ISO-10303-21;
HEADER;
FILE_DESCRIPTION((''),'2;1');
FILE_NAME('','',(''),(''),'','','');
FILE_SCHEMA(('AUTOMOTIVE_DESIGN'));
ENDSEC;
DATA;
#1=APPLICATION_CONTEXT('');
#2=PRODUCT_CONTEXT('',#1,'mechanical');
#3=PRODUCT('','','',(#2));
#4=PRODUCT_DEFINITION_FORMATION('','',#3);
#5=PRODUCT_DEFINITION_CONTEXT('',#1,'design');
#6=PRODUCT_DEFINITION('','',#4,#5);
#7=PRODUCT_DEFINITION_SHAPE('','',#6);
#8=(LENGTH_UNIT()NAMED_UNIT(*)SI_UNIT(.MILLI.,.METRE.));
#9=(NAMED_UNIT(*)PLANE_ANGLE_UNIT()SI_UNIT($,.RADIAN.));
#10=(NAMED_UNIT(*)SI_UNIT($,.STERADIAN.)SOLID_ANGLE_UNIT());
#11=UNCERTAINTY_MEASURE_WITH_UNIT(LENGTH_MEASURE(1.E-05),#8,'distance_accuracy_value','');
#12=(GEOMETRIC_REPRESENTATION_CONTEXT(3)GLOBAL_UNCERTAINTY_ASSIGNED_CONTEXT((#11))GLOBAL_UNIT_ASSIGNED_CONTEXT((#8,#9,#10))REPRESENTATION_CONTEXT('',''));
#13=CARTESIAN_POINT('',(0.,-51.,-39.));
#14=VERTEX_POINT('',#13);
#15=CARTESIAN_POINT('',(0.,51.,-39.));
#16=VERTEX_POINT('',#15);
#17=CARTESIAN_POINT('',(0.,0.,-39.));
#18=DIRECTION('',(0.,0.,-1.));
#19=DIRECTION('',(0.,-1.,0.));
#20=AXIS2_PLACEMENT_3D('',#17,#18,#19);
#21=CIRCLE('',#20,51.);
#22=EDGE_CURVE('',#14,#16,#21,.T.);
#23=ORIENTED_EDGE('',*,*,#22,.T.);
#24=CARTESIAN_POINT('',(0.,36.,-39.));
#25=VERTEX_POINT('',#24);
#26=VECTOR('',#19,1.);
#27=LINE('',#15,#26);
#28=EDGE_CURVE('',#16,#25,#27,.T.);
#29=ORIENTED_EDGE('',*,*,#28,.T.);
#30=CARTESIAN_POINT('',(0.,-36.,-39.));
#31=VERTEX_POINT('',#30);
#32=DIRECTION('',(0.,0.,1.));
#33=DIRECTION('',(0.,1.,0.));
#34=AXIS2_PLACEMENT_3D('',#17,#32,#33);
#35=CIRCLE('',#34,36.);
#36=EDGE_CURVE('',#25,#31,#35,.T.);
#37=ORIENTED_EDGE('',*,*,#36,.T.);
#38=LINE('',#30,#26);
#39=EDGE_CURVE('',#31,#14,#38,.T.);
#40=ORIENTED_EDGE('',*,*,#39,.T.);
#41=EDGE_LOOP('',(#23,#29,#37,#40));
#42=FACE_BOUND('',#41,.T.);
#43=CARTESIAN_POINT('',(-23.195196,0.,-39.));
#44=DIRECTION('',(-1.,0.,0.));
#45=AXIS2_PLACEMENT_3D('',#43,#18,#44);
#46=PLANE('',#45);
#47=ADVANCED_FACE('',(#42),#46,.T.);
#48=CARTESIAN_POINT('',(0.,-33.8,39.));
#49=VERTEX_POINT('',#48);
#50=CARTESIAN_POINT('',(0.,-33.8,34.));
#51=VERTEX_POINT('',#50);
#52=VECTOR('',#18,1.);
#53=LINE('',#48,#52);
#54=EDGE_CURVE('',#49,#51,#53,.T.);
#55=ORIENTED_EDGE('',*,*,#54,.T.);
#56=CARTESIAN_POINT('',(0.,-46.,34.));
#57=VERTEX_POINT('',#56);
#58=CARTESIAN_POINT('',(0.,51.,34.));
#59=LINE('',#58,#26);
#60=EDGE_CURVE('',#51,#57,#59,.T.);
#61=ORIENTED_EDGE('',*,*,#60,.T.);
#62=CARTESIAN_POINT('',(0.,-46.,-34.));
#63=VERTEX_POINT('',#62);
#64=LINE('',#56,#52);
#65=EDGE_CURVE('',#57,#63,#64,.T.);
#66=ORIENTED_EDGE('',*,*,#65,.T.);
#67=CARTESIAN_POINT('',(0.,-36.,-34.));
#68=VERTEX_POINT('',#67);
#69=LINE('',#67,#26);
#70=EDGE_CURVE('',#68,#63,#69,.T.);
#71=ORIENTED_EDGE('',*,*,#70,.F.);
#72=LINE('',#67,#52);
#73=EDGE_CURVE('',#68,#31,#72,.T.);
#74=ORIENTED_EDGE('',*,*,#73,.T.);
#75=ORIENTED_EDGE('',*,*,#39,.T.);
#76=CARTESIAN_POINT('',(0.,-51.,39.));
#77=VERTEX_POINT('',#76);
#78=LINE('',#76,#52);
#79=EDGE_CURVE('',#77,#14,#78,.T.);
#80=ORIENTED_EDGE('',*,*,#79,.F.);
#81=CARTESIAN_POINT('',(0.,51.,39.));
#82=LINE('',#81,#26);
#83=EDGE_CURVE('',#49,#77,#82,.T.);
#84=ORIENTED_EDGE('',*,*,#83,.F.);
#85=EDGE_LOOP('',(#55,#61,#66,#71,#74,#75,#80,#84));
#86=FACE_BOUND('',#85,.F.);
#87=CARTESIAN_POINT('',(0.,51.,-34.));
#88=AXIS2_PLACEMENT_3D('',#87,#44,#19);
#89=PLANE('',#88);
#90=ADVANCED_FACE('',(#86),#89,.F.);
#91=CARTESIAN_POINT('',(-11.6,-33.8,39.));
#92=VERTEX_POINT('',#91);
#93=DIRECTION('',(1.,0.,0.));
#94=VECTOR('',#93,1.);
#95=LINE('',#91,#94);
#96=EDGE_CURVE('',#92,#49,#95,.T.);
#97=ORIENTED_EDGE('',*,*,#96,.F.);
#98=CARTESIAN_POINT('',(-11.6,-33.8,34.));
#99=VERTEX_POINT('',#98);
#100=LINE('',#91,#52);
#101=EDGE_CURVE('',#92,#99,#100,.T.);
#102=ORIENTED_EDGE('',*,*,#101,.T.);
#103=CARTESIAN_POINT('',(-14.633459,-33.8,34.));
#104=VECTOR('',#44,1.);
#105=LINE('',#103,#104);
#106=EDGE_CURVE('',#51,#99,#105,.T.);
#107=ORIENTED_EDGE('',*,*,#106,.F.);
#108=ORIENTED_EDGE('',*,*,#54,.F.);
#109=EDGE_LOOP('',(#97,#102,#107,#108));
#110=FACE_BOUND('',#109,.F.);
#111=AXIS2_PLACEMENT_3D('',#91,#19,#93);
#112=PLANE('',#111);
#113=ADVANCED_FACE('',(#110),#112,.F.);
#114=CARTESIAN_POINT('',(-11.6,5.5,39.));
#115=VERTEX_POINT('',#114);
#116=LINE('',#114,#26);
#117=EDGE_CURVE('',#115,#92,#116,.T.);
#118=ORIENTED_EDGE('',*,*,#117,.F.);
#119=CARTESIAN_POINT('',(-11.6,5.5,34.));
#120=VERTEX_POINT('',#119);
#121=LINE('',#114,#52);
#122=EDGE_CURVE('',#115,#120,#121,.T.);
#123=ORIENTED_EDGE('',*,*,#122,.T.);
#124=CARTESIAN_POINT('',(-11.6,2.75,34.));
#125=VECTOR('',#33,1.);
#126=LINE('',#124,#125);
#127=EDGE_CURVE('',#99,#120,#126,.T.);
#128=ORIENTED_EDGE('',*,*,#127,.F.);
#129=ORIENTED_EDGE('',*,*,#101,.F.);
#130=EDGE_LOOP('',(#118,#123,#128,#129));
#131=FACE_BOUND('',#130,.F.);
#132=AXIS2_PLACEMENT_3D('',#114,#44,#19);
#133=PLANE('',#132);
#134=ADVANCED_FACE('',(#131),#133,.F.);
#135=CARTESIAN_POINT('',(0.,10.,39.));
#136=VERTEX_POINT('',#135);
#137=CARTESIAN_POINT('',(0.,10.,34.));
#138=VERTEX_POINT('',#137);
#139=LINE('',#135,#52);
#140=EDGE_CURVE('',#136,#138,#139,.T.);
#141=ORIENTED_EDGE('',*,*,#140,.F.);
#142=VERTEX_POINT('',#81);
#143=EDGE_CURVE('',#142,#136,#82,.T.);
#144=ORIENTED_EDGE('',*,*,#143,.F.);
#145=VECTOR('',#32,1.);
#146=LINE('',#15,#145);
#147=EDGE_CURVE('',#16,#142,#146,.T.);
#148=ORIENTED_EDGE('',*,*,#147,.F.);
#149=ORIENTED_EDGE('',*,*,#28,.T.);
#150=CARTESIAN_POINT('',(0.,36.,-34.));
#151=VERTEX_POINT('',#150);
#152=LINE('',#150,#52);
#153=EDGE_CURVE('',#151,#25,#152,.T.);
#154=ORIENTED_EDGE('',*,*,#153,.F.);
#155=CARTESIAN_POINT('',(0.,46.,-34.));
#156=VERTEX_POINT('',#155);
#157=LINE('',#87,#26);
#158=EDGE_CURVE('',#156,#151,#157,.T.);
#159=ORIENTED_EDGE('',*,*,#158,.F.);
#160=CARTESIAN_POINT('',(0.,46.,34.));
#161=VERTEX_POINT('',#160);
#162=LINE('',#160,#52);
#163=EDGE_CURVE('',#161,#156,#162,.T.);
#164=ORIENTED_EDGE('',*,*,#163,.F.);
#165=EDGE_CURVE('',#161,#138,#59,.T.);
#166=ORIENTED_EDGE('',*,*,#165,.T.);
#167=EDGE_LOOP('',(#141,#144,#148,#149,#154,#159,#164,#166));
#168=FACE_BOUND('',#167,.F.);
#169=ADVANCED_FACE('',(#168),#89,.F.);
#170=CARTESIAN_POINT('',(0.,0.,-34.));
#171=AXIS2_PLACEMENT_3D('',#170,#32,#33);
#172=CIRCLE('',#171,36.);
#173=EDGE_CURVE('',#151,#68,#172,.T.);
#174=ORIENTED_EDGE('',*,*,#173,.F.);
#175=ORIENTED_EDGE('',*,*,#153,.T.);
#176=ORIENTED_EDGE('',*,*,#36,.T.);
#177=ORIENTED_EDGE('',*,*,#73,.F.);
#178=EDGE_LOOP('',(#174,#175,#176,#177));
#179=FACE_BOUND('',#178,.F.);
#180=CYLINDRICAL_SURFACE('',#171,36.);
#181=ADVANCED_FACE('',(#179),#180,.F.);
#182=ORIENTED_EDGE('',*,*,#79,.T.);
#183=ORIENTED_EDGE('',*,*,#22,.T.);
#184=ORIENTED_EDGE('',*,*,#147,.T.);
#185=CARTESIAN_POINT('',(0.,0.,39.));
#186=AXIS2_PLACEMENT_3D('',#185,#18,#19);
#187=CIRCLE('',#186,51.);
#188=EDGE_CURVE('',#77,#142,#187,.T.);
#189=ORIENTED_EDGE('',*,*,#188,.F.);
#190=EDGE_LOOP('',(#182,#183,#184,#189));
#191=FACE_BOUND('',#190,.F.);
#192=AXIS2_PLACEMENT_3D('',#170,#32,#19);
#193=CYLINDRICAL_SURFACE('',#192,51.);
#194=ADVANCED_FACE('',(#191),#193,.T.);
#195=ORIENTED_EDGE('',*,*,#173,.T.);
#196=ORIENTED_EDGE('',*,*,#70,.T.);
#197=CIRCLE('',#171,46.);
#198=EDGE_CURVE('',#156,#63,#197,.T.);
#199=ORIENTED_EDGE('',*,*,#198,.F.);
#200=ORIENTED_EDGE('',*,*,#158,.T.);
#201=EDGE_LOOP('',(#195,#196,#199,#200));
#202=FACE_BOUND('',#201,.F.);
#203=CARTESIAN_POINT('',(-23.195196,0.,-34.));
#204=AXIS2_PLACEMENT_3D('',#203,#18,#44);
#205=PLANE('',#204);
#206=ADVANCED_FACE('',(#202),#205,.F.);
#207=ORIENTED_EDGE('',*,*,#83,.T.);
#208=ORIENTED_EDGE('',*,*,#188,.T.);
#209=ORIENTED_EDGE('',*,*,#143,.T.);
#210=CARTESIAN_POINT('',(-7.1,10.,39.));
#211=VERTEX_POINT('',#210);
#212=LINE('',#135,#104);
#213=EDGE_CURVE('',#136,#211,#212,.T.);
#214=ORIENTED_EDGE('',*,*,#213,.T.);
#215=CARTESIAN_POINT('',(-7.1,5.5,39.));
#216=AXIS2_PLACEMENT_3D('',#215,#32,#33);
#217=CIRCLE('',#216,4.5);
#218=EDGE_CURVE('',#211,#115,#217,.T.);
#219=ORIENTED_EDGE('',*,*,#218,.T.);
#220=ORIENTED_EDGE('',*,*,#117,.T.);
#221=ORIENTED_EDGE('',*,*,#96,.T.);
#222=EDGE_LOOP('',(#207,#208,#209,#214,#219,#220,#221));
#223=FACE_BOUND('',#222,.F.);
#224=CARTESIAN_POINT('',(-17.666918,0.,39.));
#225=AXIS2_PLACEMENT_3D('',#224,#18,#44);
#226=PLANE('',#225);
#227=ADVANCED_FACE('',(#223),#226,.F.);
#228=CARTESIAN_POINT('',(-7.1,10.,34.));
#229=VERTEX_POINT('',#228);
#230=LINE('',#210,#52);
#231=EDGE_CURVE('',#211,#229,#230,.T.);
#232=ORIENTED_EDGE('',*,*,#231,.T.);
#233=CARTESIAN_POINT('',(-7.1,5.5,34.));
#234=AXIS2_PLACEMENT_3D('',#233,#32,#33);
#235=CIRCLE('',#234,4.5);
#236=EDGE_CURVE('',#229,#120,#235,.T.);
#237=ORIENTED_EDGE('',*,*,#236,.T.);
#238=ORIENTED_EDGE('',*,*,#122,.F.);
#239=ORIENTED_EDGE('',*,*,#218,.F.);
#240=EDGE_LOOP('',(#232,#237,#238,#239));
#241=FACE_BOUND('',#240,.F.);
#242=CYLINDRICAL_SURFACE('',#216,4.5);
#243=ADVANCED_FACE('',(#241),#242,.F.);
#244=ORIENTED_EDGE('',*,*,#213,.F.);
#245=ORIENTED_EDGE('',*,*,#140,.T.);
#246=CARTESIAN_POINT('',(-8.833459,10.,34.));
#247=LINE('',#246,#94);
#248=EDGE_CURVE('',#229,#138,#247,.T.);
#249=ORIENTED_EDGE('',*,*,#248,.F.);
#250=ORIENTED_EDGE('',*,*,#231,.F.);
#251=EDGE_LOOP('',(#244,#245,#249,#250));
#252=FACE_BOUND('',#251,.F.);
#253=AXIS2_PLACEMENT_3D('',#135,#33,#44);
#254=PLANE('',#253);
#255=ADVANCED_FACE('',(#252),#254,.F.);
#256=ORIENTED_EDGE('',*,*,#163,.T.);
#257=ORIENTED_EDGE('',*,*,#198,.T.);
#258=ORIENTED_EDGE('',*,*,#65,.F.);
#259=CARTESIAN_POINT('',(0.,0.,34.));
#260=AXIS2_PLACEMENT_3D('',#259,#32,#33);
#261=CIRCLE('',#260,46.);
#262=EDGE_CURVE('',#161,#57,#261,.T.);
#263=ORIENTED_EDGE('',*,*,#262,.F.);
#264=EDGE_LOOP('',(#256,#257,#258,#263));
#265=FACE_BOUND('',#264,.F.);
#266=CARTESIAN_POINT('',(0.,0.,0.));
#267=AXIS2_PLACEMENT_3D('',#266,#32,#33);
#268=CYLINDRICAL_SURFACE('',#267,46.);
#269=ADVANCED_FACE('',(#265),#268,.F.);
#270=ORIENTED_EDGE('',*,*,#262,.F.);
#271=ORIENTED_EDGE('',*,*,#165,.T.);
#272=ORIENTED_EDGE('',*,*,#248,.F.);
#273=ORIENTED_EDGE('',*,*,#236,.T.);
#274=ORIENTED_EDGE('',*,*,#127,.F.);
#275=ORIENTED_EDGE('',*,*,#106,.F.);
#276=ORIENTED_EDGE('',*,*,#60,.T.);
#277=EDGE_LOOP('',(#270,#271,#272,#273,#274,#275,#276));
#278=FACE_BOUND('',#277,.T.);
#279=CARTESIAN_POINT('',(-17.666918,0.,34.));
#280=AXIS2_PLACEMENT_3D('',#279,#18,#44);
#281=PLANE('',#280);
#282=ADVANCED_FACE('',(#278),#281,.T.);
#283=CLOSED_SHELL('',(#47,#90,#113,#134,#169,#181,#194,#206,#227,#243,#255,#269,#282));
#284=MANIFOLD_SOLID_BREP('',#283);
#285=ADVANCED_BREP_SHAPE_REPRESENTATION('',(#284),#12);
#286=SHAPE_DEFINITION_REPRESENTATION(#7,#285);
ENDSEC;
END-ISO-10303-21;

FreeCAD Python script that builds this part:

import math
import FreeCAD as App
import Part
import Sketcher
from FreeCAD import Vector

doc = App.newDocument("Part")
body = doc.addObject("PartDesign::Body", "Body")

# Sketch on XY plane
sketch1 = body.newObject("Sketcher::SketchObject", "Sketch")
sketch1.AttachmentSupport = (doc.getObject("XY_Plane"), [""])
sketch1.MapMode = "FlatFace"
sketch1.addGeometry([
    Part.LineSegment(Vector(0, 46, 0), Vector(0, 51, 0)),
    Part.ArcOfCircle(Part.Circle(Vector(0, 0, 0), Vector(0, 0, 1), 51), math.radians(90), math.radians(270)),
    Part.LineSegment(Vector(0, -51, 0), Vector(0, -46, 0)),
    Part.ArcOfCircle(Part.Circle(Vector(0, 0, 0), Vector(0, 0, 1), 46), math.radians(90), math.radians(270)),
], False)
sketch1.addConstraint([
    Sketcher.Constraint("Coincident", 0, 2, 1, 1),
    Sketcher.Constraint("Coincident", 1, 2, 2, 1),
    Sketcher.Constraint("Coincident", 2, 2, 3, 2),
    Sketcher.Constraint("Coincident", 3, 1, 0, 1),
    Sketcher.Constraint("Vertical", 0),
    Sketcher.Constraint("Vertical", 2),
    Sketcher.Constraint("Coincident", 1, 3, -1, 1),
    Sketcher.Constraint("Coincident", 3, 3, -1, 1),
    Sketcher.Constraint("PointOnObject", 0, 2, -2),
    Sketcher.Constraint("PointOnObject", 1, 2, -2),
    Sketcher.Constraint("Radius", 1, 51.0),
    Sketcher.Constraint("Radius", 3, 46.0),
])
pad1 = body.newObject("PartDesign::Pad", "Pad")
pad1.Profile = sketch1
pad1.Length = 68
pad1.Midplane = True

# Sketch on XY plane
sketch2 = body.newObject("Sketcher::SketchObject", "Sketch001")
sketch2.AttachmentSupport = (doc.getObject("XY_Plane"), [""])
sketch2.MapMode = "FlatFace"
sketch2.AttachmentOffset = App.Placement(Vector(0, 0, 34), App.Rotation())
sketch2.addGeometry([
    Part.LineSegment(Vector(0, -51, 0), Vector(0, 51, 0)),
    Part.ArcOfCircle(Part.Circle(Vector(0, 0, 0), Vector(0, 0, 1), 51), math.radians(90), math.radians(270)),
], False)
sketch2.addConstraint([
    Sketcher.Constraint("Coincident", 0, 1, 1, 2),
    Sketcher.Constraint("Coincident", 1, 1, 0, 2),
    Sketcher.Constraint("Vertical", 0),
    Sketcher.Constraint("Coincident", 1, 3, -1, 1),
    Sketcher.Constraint("PointOnObject", 0, 1, -2),
    Sketcher.Constraint("Radius", 1, 51.0),
])
pad2 = body.newObject("PartDesign::Pad", "Pad001")
pad2.Profile = sketch2
pad2.Length = 5

# Sketch on XY plane
sketch3 = body.newObject("Sketcher::SketchObject", "Sketch002")
sketch3.AttachmentSupport = (doc.getObject("XY_Plane"), [""])
sketch3.MapMode = "FlatFace"
sketch3.AttachmentOffset = App.Placement(Vector(0, 0, -34), App.Rotation())
sketch3.addGeometry([
    Part.LineSegment(Vector(0, 51, 0), Vector(0, 36, 0)),
    Part.ArcOfCircle(Part.Circle(Vector(0, 0, 0), Vector(0, 0, 1), 36), math.radians(90), math.radians(270)),
    Part.LineSegment(Vector(0, -36, 0), Vector(0, -51, 0)),
    Part.ArcOfCircle(Part.Circle(Vector(0, 0, 0), Vector(0, 0, 1), 51), math.radians(90), math.radians(270)),
], False)
sketch3.addConstraint([
    Sketcher.Constraint("Coincident", 0, 2, 1, 1),
    Sketcher.Constraint("Coincident", 1, 2, 2, 1),
    Sketcher.Constraint("Coincident", 2, 2, 3, 2),
    Sketcher.Constraint("Coincident", 3, 1, 0, 1),
    Sketcher.Constraint("Vertical", 0),
    Sketcher.Constraint("Vertical", 2),
    Sketcher.Constraint("Coincident", 1, 3, -1, 1),
    Sketcher.Constraint("Coincident", 3, 3, -1, 1),
    Sketcher.Constraint("PointOnObject", 0, 2, -2),
    Sketcher.Constraint("PointOnObject", 1, 2, -2),
    Sketcher.Constraint("Radius", 1, 36.0),
    Sketcher.Constraint("Radius", 3, 51.0),
])
pad3 = body.newObject("PartDesign::Pad", "Pad002")
pad3.Profile = sketch3
pad3.Length = 5
pad3.Reversed = True

# Sketch on XY plane
sketch4 = body.newObject("Sketcher::SketchObject", "Sketch003")
sketch4.AttachmentSupport = (doc.getObject("XY_Plane"), [""])
sketch4.MapMode = "FlatFace"
sketch4.AttachmentOffset = App.Placement(Vector(0, 0, 39), App.Rotation())
sketch4.addGeometry([
    Part.LineSegment(Vector(-11.6, 5.5, 0), Vector(-11.6, -33.8, 0)),  # 0
    Part.LineSegment(Vector(-11.6, -33.8, 0), Vector(0, -33.8, 0)),  # 1
    Part.LineSegment(Vector(0, -33.8, 0), Vector(0, -2.1, 0)),  # 2
    Part.ArcOfCircle(Part.Circle(Vector(0, 0, 0), Vector(0, 0, 1), 2.1), math.radians(-90), math.radians(-68)),  # 3
    Part.ArcOfCircle(Part.Circle(Vector(0, 0, 0), Vector(0, 0, 1), 2.2), math.radians(-68), math.radians(0)),  # 4
    Part.ArcOfCircle(Part.Circle(Vector(0, 0, 0), Vector(0, 0, 1), 2.1), math.radians(0), math.radians(90)),  # 5
    Part.LineSegment(Vector(0, 2.1, 0), Vector(0, 10, 0)),  # 6
    Part.LineSegment(Vector(0, 10, 0), Vector(-7.1, 10, 0)),  # 7
    Part.ArcOfCircle(Part.Circle(Vector(-7.1, 5.5, 0), Vector(0, 0, 1), 4.5), math.radians(90), math.radians(180)),  # 8
], False)
sketch4.addConstraint([
    Sketcher.Constraint("Coincident", 0, 2, 1, 1),
    Sketcher.Constraint("Coincident", 1, 2, 2, 1),
    Sketcher.Constraint("Coincident", 2, 2, 3, 1),
    Sketcher.Constraint("Tangent", 3, 2, 4, 1),
    Sketcher.Constraint("Tangent", 4, 2, 5, 1),
    Sketcher.Constraint("Coincident", 5, 2, 6, 1),
    Sketcher.Constraint("Coincident", 6, 2, 7, 1),
    Sketcher.Constraint("Tangent", 7, 2, 8, 1),
    Sketcher.Constraint("Tangent", 8, 2, 0, 1),
    Sketcher.Constraint("Vertical", 0),
    Sketcher.Constraint("Horizontal", 1),
    Sketcher.Constraint("Vertical", 2),
    Sketcher.Constraint("Vertical", 6),
    Sketcher.Constraint("Horizontal", 7),
    Sketcher.Constraint("Coincident", 3, 3, -1, 1),
    Sketcher.Constraint("Coincident", 5, 3, -1, 1),
    Sketcher.Constraint("PointOnObject", 1, 2, -2),
    Sketcher.Constraint("PointOnObject", 4, 2, -1),
    Sketcher.Constraint("PointOnObject", 5, 2, -2),
    Sketcher.Constraint("Radius", 8, 4.5),
    Sketcher.Constraint("Radius", 3, 2.15),
    Sketcher.Constraint("DistanceX", 1, 1, 1, 2, 11.6),
    Sketcher.Constraint("DistanceY", 0, 2, 0, 1, 39.3),
    Sketcher.Constraint("DistanceY", 3, 2, -1, 1, 2.0),
    Sketcher.Constraint("DistanceY", -1, 1, 6, 2, 10.0),
])
pocket1 = body.newObject("PartDesign::Pocket", "Pocket")
pocket1.Profile = sketch4
pocket1.Length = 10

doc.recompute()
